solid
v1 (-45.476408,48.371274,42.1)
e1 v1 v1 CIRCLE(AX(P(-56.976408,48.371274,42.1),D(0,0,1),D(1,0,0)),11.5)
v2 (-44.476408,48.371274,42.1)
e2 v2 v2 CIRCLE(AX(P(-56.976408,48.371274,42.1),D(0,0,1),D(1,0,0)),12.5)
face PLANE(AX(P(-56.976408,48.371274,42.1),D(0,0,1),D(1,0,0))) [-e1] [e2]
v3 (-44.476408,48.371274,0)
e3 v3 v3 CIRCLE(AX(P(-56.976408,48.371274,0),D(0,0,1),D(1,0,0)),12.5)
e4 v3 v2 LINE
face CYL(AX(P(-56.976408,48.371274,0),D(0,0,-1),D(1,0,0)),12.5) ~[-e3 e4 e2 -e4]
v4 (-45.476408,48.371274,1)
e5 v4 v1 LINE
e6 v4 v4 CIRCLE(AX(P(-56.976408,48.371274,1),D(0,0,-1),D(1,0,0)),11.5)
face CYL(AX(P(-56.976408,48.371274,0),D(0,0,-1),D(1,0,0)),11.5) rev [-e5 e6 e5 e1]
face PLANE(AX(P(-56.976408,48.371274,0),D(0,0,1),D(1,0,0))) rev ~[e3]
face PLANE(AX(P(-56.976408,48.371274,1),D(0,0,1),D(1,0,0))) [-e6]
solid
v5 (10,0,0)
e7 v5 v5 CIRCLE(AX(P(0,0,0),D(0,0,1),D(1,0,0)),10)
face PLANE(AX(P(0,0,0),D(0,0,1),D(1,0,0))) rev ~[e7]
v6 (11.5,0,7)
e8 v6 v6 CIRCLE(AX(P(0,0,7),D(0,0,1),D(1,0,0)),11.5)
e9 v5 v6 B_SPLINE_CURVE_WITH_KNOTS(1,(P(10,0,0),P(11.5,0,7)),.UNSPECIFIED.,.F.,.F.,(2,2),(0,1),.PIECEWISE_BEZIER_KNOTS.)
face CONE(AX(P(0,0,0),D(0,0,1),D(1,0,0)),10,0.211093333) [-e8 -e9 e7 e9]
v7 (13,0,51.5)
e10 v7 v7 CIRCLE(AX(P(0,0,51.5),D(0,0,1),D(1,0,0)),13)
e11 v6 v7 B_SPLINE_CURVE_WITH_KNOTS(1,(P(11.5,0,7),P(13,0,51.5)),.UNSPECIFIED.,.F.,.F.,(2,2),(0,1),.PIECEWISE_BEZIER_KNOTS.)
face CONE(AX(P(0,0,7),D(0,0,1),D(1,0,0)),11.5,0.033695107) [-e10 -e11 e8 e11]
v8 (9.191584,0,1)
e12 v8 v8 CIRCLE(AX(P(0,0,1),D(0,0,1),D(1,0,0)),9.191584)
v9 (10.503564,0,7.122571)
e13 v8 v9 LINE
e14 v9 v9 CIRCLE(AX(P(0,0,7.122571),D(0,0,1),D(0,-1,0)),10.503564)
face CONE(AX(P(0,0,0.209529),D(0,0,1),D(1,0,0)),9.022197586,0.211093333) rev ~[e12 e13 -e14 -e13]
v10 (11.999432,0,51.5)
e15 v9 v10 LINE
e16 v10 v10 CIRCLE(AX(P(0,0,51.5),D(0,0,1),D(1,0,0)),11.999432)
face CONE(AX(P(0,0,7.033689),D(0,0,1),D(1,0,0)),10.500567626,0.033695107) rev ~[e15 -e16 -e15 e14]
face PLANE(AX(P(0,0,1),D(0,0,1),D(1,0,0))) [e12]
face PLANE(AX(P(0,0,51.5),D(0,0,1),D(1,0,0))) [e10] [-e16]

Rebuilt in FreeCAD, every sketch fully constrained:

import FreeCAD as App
import Part
import Sketcher

V = App.Vector
Q = App.Units.Quantity


def faces_at(feature, points):
    """Names of the faces that lie closest to the given points."""
    faces = feature.Shape.Faces
    near = lambda p: min(range(len(faces)), key=lambda i: faces[i].distToShape(Part.Vertex(*p))[0])
    return sorted({f"Face{near(p) + 1}" for p in points})

doc = App.newDocument("Part")
body = doc.addObject("PartDesign::Body", "Body")

# Sketch on XY plane
sketch1 = body.newObject("Sketcher::SketchObject", "Sketch")
sketch1.AttachmentSupport = (doc.getObject("XY_Plane"), [""])
sketch1.MapMode = "FlatFace"
sketch1.addGeometry(Part.Circle(V(0, 0, 0), V(0, 0, 1), 10), False)
sketch1.addConstraint(Sketcher.Constraint("Coincident", 0, 3, -1, 1))
sketch1.addConstraint(Sketcher.Constraint("Diameter", 0, Q("20 mm")))

# Sketch on XY plane
sketch2 = body.newObject("Sketcher::SketchObject", "Sketch001")
sketch2.AttachmentSupport = (doc.getObject("XY_Plane"), [""])
sketch2.MapMode = "FlatFace"
sketch2.AttachmentOffset = App.Placement(V(0, 0, 7), App.Rotation())
sketch2.addGeometry(Part.Circle(V(0, 0, 0), V(0, 0, 1), 12), False)
sketch2.addConstraint(Sketcher.Constraint("Coincident", 0, 3, -1, 1))
sketch2.addConstraint(Sketcher.Constraint("Diameter", 0, Q("23 mm")))

additiveloft = body.newObject("PartDesign::AdditiveLoft", "AdditiveLoft")
additiveloft.Profile = sketch1
additiveloft.Sections = [sketch2]

# Sketch on XY plane
sketch3 = body.newObject("Sketcher::SketchObject", "Sketch002")
sketch3.AttachmentSupport = (doc.getObject("XY_Plane"), [""])
sketch3.MapMode = "FlatFace"
sketch3.AttachmentOffset = App.Placement(V(0, 0, 7), App.Rotation())
sketch3.addGeometry(Part.Circle(V(0, 0, 0), V(0, 0, 1), 12), False)
sketch3.addConstraint(Sketcher.Constraint("Coincident", 0, 3, -1, 1))
sketch3.addConstraint(Sketcher.Constraint("Diameter", 0, Q("23 mm")))

# Sketch on XY plane
sketch4 = body.newObject("Sketcher::SketchObject", "Sketch003")
sketch4.AttachmentSupport = (doc.getObject("XY_Plane"), [""])
sketch4.MapMode = "FlatFace"
sketch4.AttachmentOffset = App.Placement(V(0, 0, 51.5), App.Rotation())
sketch4.addGeometry(Part.Circle(V(0, 0, 0), V(0, 0, 1), 13), False)
sketch4.addConstraint(Sketcher.Constraint("Coincident", 0, 3, -1, 1))
sketch4.addConstraint(Sketcher.Constraint("Diameter", 0, Q("26 mm")))

additiveloft2 = body.newObject("PartDesign::AdditiveLoft", "AdditiveLoft001")
additiveloft2.Profile = sketch3
additiveloft2.Sections = [sketch4]
doc.recompute()

thickness = body.newObject("PartDesign::Thickness", "Thickness")
thickness.Base = (additiveloft2, faces_at(additiveloft2, [(0, 0, 51.5)]))
thickness.Value = 1
thickness.Reversed = True
thickness.Join = "Intersection"
body2 = doc.addObject("PartDesign::Body", "Body001")

# Sketch on XY plane
sketch5 = body2.newObject("Sketcher::SketchObject", "Sketch004")
sketch5.AttachmentSupport = (doc.getObject("XY_Plane001"), [""])
sketch5.MapMode = "FlatFace"
sketch5.addGeometry(Part.Circle(V(-57, 48, 0), V(0, 0, 1), 12), False)
sketch5.addConstraint(Sketcher.Constraint("Diameter", 0, Q("25 mm")))
sketch5.addConstraint(Sketcher.Constraint("DistanceX", 0, 3, -1, 1, Q("56.976408 mm")))
sketch5.addConstraint(Sketcher.Constraint("DistanceY", -1, 1, 0, 3, Q("48.371274 mm")))
pad1 = body2.newObject("PartDesign::Pad", "Pad")
pad1.Profile = sketch5
pad1.Length = 42.1
doc.recompute()

thickness2 = body2.newObject("PartDesign::Thickness", "Thickness001")
thickness2.Base = (pad1, faces_at(pad1, [(-56.976, 48.371, 42.1)]))
thickness2.Value = 1
thickness2.Reversed = True
thickness2.Join = "Arc"

doc.recompute()
